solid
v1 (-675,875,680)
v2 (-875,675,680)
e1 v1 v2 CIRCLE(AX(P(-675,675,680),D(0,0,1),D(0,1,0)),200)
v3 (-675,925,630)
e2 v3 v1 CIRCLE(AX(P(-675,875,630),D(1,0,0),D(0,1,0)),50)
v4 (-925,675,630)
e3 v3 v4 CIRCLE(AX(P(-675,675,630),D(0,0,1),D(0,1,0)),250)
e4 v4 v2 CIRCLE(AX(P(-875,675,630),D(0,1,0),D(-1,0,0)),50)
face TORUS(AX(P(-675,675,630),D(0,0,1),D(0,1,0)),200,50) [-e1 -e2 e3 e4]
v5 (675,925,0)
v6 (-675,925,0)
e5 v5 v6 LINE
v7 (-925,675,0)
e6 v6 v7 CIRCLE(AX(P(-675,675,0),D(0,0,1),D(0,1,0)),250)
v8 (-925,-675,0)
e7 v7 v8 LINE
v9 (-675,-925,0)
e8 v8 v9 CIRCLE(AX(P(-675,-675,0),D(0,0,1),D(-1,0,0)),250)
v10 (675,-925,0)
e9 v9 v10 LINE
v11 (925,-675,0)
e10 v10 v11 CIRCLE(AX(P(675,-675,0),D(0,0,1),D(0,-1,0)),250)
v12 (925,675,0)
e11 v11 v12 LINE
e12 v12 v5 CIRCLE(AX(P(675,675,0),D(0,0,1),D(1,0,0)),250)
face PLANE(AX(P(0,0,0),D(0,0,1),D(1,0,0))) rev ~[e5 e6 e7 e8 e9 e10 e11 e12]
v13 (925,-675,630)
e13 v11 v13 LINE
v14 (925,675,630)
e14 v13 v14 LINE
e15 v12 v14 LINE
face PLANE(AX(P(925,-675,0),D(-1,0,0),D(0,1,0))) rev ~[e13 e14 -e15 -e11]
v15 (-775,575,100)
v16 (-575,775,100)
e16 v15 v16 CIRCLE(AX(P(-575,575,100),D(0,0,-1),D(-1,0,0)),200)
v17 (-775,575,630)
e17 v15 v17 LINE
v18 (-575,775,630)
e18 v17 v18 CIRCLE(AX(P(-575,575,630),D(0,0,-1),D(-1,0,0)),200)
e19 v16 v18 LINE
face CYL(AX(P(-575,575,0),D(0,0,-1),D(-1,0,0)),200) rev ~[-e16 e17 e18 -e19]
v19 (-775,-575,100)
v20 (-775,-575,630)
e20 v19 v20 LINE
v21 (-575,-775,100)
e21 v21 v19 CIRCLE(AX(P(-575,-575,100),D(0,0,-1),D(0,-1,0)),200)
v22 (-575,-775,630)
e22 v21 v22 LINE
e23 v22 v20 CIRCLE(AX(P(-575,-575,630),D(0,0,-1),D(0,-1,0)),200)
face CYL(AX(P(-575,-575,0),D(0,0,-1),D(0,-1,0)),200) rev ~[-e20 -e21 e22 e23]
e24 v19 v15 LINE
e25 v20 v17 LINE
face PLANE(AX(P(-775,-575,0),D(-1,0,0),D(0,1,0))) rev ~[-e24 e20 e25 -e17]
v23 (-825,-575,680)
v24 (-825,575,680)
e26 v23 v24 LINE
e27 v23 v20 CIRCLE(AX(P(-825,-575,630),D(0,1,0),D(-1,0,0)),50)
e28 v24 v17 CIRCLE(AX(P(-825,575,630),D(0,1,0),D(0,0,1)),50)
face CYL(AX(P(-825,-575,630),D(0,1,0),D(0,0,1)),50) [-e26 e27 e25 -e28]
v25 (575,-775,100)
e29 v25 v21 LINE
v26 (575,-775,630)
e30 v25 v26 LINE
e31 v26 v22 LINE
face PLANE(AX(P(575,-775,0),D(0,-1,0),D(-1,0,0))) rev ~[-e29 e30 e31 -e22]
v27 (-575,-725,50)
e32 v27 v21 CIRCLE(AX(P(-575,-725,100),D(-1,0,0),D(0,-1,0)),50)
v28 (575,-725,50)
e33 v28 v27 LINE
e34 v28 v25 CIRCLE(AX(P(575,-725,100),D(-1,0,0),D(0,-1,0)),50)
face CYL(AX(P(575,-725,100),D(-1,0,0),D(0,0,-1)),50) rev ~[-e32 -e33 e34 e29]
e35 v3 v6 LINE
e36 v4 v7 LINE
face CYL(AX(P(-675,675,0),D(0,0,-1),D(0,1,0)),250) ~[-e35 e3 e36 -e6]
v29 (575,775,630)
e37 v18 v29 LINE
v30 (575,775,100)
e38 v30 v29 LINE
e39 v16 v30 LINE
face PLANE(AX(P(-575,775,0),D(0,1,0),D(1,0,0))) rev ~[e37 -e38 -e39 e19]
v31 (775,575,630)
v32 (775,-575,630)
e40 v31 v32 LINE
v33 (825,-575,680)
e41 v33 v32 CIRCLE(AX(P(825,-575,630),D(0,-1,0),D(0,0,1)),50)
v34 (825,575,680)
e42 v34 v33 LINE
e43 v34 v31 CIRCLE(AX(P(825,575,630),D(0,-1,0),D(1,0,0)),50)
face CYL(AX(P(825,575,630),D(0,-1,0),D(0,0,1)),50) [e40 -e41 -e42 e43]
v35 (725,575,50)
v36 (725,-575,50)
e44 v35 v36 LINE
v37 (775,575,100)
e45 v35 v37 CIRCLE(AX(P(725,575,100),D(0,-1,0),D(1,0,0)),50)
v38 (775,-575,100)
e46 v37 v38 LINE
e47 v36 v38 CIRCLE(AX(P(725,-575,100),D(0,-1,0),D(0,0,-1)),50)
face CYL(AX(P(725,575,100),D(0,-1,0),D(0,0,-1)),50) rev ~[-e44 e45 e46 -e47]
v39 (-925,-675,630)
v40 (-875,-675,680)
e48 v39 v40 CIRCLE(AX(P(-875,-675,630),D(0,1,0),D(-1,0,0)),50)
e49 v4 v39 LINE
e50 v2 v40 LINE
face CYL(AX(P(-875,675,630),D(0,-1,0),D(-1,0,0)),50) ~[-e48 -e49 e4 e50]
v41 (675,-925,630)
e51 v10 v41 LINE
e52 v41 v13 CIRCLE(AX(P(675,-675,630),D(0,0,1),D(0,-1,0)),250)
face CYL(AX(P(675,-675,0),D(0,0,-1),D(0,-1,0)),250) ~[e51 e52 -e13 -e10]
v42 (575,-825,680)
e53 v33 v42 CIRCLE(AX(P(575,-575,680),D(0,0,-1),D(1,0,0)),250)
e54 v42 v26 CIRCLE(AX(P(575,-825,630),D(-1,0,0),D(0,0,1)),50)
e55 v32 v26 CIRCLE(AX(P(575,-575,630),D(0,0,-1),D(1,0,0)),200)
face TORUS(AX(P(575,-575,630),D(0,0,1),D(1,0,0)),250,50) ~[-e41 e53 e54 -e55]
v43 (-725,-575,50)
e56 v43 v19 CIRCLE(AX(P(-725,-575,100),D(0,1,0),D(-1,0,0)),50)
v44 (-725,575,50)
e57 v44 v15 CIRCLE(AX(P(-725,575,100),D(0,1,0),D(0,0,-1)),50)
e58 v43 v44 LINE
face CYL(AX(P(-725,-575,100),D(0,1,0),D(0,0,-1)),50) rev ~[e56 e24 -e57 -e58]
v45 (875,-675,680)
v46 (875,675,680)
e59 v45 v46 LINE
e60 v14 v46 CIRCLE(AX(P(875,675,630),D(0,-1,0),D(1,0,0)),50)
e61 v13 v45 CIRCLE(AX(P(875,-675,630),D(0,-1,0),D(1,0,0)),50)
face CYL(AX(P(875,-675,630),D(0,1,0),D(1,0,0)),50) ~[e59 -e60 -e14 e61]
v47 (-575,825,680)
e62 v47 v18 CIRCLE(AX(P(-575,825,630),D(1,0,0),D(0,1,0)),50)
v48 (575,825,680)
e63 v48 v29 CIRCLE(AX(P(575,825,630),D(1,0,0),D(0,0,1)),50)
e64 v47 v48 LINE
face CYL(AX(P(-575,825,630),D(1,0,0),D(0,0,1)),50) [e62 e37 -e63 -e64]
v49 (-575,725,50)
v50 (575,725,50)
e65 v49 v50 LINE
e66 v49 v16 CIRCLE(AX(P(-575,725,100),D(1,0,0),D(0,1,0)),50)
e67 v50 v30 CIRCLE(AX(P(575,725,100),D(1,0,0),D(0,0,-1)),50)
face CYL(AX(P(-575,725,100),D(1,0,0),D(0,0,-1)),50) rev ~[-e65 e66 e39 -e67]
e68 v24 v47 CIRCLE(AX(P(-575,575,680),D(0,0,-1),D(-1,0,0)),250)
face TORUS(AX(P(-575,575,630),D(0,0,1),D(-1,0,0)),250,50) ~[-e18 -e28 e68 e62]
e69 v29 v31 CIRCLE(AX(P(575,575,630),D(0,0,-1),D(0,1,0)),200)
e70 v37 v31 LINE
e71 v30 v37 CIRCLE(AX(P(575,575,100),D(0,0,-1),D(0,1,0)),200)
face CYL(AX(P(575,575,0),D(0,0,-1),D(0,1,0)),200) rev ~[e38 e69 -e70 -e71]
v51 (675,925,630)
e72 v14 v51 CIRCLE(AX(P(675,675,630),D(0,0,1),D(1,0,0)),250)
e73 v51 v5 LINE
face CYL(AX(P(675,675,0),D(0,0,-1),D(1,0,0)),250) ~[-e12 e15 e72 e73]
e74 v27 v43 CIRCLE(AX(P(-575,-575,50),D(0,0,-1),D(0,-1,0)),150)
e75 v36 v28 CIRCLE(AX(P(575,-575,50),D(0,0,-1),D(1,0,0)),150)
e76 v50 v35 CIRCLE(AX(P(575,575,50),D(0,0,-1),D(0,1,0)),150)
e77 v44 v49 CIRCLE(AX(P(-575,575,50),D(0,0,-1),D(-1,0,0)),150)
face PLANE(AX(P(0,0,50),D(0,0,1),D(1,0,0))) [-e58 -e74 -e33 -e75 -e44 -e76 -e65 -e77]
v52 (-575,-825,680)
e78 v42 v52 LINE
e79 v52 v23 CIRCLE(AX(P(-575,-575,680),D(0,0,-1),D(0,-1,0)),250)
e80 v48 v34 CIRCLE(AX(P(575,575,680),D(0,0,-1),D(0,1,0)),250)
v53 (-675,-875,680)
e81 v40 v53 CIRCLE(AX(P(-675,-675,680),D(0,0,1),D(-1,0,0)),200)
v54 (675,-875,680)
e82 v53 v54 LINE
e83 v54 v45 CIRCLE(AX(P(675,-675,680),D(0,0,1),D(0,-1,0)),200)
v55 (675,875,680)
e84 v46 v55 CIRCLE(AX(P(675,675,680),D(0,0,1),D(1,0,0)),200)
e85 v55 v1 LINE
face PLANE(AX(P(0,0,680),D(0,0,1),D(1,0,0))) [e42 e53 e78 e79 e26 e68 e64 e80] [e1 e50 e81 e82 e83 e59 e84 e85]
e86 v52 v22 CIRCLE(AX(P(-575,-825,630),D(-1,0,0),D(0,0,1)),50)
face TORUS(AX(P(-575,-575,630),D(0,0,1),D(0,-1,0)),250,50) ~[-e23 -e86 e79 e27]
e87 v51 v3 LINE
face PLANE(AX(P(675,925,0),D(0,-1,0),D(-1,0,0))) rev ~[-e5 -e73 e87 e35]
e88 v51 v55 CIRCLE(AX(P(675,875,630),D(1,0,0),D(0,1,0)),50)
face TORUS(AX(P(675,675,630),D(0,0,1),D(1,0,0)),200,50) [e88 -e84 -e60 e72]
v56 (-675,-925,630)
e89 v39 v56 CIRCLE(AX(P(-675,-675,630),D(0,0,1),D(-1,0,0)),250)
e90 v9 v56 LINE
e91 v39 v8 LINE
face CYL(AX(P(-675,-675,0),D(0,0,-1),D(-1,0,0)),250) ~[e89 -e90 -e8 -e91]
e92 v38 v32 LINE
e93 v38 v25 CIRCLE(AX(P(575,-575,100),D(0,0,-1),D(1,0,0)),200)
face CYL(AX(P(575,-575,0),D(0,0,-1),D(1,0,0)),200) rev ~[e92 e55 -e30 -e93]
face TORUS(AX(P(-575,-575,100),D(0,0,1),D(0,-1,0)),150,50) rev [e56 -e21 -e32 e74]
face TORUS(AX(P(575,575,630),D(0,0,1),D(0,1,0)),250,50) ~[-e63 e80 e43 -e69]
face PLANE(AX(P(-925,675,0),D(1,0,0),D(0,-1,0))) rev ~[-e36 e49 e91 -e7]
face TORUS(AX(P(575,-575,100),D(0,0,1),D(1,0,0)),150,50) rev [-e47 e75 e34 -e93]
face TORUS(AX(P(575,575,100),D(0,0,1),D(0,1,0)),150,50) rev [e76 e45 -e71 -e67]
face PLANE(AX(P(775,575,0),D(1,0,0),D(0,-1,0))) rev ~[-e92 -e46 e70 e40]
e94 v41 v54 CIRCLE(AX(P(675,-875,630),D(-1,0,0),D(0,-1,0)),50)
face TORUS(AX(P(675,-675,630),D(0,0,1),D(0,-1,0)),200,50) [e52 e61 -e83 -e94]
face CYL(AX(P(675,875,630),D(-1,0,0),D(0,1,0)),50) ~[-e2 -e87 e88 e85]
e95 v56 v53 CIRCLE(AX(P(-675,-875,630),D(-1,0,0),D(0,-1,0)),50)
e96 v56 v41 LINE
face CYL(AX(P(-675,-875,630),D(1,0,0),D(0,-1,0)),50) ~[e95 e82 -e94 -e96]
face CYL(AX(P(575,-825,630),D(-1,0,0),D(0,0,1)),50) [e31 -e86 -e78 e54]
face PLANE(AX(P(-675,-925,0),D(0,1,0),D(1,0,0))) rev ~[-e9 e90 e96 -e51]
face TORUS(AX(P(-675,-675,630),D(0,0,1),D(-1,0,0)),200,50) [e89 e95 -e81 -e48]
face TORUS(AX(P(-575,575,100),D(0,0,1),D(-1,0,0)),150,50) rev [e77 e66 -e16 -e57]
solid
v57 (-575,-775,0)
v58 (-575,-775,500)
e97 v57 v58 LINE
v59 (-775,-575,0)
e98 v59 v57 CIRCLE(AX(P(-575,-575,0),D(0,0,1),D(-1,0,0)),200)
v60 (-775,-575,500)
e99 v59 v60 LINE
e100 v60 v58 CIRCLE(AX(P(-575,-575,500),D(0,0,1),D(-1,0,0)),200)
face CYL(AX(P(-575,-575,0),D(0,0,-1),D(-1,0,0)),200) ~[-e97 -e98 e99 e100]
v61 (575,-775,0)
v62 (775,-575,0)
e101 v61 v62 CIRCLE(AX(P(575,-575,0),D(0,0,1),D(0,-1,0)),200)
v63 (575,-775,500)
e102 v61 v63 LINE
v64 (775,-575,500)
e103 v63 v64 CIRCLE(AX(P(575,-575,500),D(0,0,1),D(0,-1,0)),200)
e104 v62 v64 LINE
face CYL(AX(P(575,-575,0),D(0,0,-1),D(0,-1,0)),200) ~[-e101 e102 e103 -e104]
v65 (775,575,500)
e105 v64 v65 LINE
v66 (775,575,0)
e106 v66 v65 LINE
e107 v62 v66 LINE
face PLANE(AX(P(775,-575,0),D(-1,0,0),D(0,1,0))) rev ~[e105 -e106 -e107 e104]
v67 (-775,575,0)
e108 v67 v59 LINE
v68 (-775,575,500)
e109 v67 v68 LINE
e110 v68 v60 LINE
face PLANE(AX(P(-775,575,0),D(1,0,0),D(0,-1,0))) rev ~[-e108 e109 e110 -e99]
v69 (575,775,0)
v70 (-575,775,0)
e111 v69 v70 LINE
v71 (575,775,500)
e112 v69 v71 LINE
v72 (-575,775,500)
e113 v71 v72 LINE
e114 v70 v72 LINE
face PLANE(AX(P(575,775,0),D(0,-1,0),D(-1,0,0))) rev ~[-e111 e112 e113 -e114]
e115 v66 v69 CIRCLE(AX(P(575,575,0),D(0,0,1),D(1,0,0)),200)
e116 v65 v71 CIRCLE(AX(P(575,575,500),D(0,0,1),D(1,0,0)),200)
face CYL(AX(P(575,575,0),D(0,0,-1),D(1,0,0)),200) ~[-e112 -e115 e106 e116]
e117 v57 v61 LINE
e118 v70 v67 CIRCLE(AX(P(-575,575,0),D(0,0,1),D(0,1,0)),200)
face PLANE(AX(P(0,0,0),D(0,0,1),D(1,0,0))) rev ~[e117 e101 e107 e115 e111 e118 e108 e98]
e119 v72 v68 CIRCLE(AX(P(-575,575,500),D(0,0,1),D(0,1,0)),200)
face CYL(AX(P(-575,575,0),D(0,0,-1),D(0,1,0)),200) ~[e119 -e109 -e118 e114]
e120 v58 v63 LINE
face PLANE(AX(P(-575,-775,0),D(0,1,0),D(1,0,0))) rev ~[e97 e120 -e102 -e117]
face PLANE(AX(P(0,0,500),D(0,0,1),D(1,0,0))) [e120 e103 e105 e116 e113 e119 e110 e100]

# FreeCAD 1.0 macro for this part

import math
import FreeCAD as App
import Part
import Sketcher


def edges_at(feature, points):
    """Names of the edges that pass closest to the given points."""
    edges = feature.Shape.Edges
    near = lambda p: min(range(len(edges)), key=lambda i: edges[i].distToShape(Part.Vertex(*p))[0])
    return sorted({f"Edge{near(p) + 1}" for p in points})

doc = App.newDocument("Part")
body = doc.addObject("PartDesign::Body", "Body")

# Sketch on XY plane
sketch1 = body.newObject("Sketcher::SketchObject", "Sketch")
sketch1.AttachmentSupport = (doc.getObject("XY_Plane"), [""])
sketch1.MapMode = "FlatFace"
sketch1.addGeometry(Part.ArcOfCircle(Part.Circle(App.Vector(-675, -675, 0), App.Vector(0, 0, 1), 250), math.radians(180), math.radians(270)), False)
sketch1.addGeometry(Part.LineSegment(App.Vector(-675, -925, 0), App.Vector(675, -925, 0)), False)
sketch1.addGeometry(Part.ArcOfCircle(Part.Circle(App.Vector(675, -675, 0), App.Vector(0, 0, 1), 250), math.radians(-90), math.radians(0)), False)
sketch1.addGeometry(Part.LineSegment(App.Vector(925, -675, 0), App.Vector(925, 675, 0)), False)
sketch1.addGeometry(Part.ArcOfCircle(Part.Circle(App.Vector(675, 675, 0), App.Vector(0, 0, 1), 250), math.radians(0), math.radians(90)), False)
sketch1.addGeometry(Part.LineSegment(App.Vector(675, 925, 0), App.Vector(-675, 925, 0)), False)
sketch1.addGeometry(Part.ArcOfCircle(Part.Circle(App.Vector(-675, 675, 0), App.Vector(0, 0, 1), 250), math.radians(90), math.radians(180)), False)
sketch1.addGeometry(Part.LineSegment(App.Vector(-925, 675, 0), App.Vector(-925, -675, 0)), False)
sketch1.addConstraint(Sketcher.Constraint("Tangent", 0, 2, 1, 1))
sketch1.addConstraint(Sketcher.Constraint("Tangent", 1, 2, 2, 1))
sketch1.addConstraint(Sketcher.Constraint("Tangent", 2, 2, 3, 1))
sketch1.addConstraint(Sketcher.Constraint("Tangent", 3, 2, 4, 1))
sketch1.addConstraint(Sketcher.Constraint("Tangent", 4, 2, 5, 1))
sketch1.addConstraint(Sketcher.Constraint("Tangent", 5, 2, 6, 1))
sketch1.addConstraint(Sketcher.Constraint("Tangent", 6, 2, 7, 1))
sketch1.addConstraint(Sketcher.Constraint("Tangent", 7, 2, 0, 1))
sketch1.addConstraint(Sketcher.Constraint("Horizontal", 1))
sketch1.addConstraint(Sketcher.Constraint("Vertical", 3))
sketch1.addConstraint(Sketcher.Constraint("Horizontal", 5))
sketch1.addConstraint(Sketcher.Constraint("Vertical", 7))
sketch1.addConstraint(Sketcher.Constraint("Equal", 0, 2))
sketch1.addConstraint(Sketcher.Constraint("Equal", 2, 4))
sketch1.addConstraint(Sketcher.Constraint("Equal", 4, 6))
sketch1.addConstraint(Sketcher.Constraint("Symmetric", 0, 3, 4, 3, -1, 1))
sketch1.addConstraint(Sketcher.Constraint("Equal", 5, 3))
sketch1.addConstraint(Sketcher.Constraint("Radius", 0, 250.0))
sketch1.addConstraint(Sketcher.Constraint("DistanceX", 1, 1, 1, 2, 1350.0))
pad1 = body.newObject("PartDesign::Pad", "Pad")
pad1.Profile = sketch1
pad1.Length = 50

# Sketch on XY plane
sketch2 = body.newObject("Sketcher::SketchObject", "Sketch001")
sketch2.AttachmentSupport = (doc.getObject("XY_Plane"), [""])
sketch2.MapMode = "FlatFace"
sketch2.addGeometry(Part.ArcOfCircle(Part.Circle(App.Vector(-675, -675, 0), App.Vector(0, 0, 1), 250), math.radians(180), math.radians(270)), False)
sketch2.addGeometry(Part.LineSegment(App.Vector(-675, -925, 0), App.Vector(675, -925, 0)), False)
sketch2.addGeometry(Part.ArcOfCircle(Part.Circle(App.Vector(675, -675, 0), App.Vector(0, 0, 1), 250), math.radians(-90), math.radians(0)), False)
sketch2.addGeometry(Part.LineSegment(App.Vector(925, -675, 0), App.Vector(925, 675, 0)), False)
sketch2.addGeometry(Part.ArcOfCircle(Part.Circle(App.Vector(675, 675, 0), App.Vector(0, 0, 1), 250), math.radians(0), math.radians(90)), False)
sketch2.addGeometry(Part.LineSegment(App.Vector(675, 925, 0), App.Vector(-675, 925, 0)), False)
sketch2.addGeometry(Part.ArcOfCircle(Part.Circle(App.Vector(-675, 675, 0), App.Vector(0, 0, 1), 250), math.radians(90), math.radians(180)), False)
sketch2.addGeometry(Part.LineSegment(App.Vector(-925, 675, 0), App.Vector(-925, -675, 0)), False)
sketch2.addGeometry(Part.ArcOfCircle(Part.Circle(App.Vector(575, -575, 0), App.Vector(0, 0, 1), 200), math.radians(-90), math.radians(0)), False)
sketch2.addGeometry(Part.LineSegment(App.Vector(575, -775, 0), App.Vector(-575, -775, 0)), False)
sketch2.addGeometry(Part.ArcOfCircle(Part.Circle(App.Vector(-575, -575, 0), App.Vector(0, 0, 1), 200), math.radians(180), math.radians(270)), False)
sketch2.addGeometry(Part.LineSegment(App.Vector(-775, -575, 0), App.Vector(-775, 575, 0)), False)
sketch2.addGeometry(Part.ArcOfCircle(Part.Circle(App.Vector(-575, 575, 0), App.Vector(0, 0, 1), 200), math.radians(90), math.radians(180)), False)
sketch2.addGeometry(Part.LineSegment(App.Vector(-575, 775, 0), App.Vector(575, 775, 0)), False)
sketch2.addGeometry(Part.ArcOfCircle(Part.Circle(App.Vector(575, 575, 0), App.Vector(0, 0, 1), 200), math.radians(0), math.radians(90)), False)
sketch2.addGeometry(Part.LineSegment(App.Vector(775, 575, 0), App.Vector(775, -575, 0)), False)
sketch2.addConstraint(Sketcher.Constraint("Tangent", 0, 2, 1, 1))
sketch2.addConstraint(Sketcher.Constraint("Tangent", 1, 2, 2, 1))
sketch2.addConstraint(Sketcher.Constraint("Tangent", 2, 2, 3, 1))
sketch2.addConstraint(Sketcher.Constraint("Tangent", 3, 2, 4, 1))
sketch2.addConstraint(Sketcher.Constraint("Tangent", 4, 2, 5, 1))
sketch2.addConstraint(Sketcher.Constraint("Tangent", 5, 2, 6, 1))
sketch2.addConstraint(Sketcher.Constraint("Tangent", 6, 2, 7, 1))
sketch2.addConstraint(Sketcher.Constraint("Tangent", 7, 2, 0, 1))
sketch2.addConstraint(Sketcher.Constraint("Tangent", 8, 1, 9, 1))
sketch2.addConstraint(Sketcher.Constraint("Tangent", 9, 2, 10, 2))
sketch2.addConstraint(Sketcher.Constraint("Tangent", 10, 1, 11, 1))
sketch2.addConstraint(Sketcher.Constraint("Tangent", 11, 2, 12, 2))
sketch2.addConstraint(Sketcher.Constraint("Tangent", 12, 1, 13, 1))
sketch2.addConstraint(Sketcher.Constraint("Tangent", 13, 2, 14, 2))
sketch2.addConstraint(Sketcher.Constraint("Tangent", 14, 1, 15, 1))
sketch2.addConstraint(Sketcher.Constraint("Tangent", 15, 2, 8, 2))
sketch2.addConstraint(Sketcher.Constraint("Horizontal", 1))
sketch2.addConstraint(Sketcher.Constraint("Vertical", 3))
sketch2.addConstraint(Sketcher.Constraint("Horizontal", 5))
sketch2.addConstraint(Sketcher.Constraint("Vertical", 7))
sketch2.addConstraint(Sketcher.Constraint("Horizontal", 9))
sketch2.addConstraint(Sketcher.Constraint("Vertical", 11))
sketch2.addConstraint(Sketcher.Constraint("Horizontal", 13))
sketch2.addConstraint(Sketcher.Constraint("Vertical", 15))
sketch2.addConstraint(Sketcher.Constraint("Equal", 0, 2))
sketch2.addConstraint(Sketcher.Constraint("Equal", 2, 4))
sketch2.addConstraint(Sketcher.Constraint("Equal", 4, 6))
sketch2.addConstraint(Sketcher.Constraint("Equal", 8, 10))
sketch2.addConstraint(Sketcher.Constraint("Equal", 10, 12))
sketch2.addConstraint(Sketcher.Constraint("Equal", 12, 14))
sketch2.addConstraint(Sketcher.Constraint("Symmetric", 0, 3, 4, 3, -1, 1))
sketch2.addConstraint(Sketcher.Constraint("Symmetric", 8, 3, 12, 3, -1, 1))
sketch2.addConstraint(Sketcher.Constraint("Equal", 5, 3))
sketch2.addConstraint(Sketcher.Constraint("Equal", 13, 11))
sketch2.addConstraint(Sketcher.Constraint("Radius", 0, 250.0))
sketch2.addConstraint(Sketcher.Constraint("Radius", 8, 200.0))
sketch2.addConstraint(Sketcher.Constraint("DistanceX", 1, 1, 1, 2, 1350.0))
sketch2.addConstraint(Sketcher.Constraint("DistanceX", 9, 2, 9, 1, 1150.0))
pad2 = body.newObject("PartDesign::Pad", "Pad001")
pad2.Profile = sketch2
pad2.Length = 680
doc.recompute()

fillet = body.newObject("PartDesign::Fillet", "Fillet")
fillet.Base = (pad2, edges_at(pad2, [
    (-851.777, -851.777, 680),
    (0, -925, 680),
    (851.777, -851.777, 680),
    (925, 0, 680),
    (851.777, 851.777, 680),
    (0, 925, 680),
    (-851.777, 851.777, 680),
    (-925, 0, 680),
    (0, -775, 680),
    (-716.421, -716.421, 680),
    (-775, 0, 680),
    (-716.421, 716.421, 680),
    (0, 775, 680),
    (716.421, 716.421, 680),
    (775, 0, 680),
    (716.421, -716.421, 680),
    (-716.421, -716.421, 50),
    (-775, 0, 50),
    (-716.421, 716.421, 50),
    (0, 775, 50),
    (716.421, 716.421, 50),
    (775, 0, 50),
    (716.421, -716.421, 50),
    (0, -775, 50),
]))
fillet.Radius = 50
body2 = doc.addObject("PartDesign::Body", "Body001")

# Sketch on XY plane
sketch3 = body2.newObject("Sketcher::SketchObject", "Sketch002")
sketch3.AttachmentSupport = (doc.getObject("XY_Plane001"), [""])
sketch3.MapMode = "FlatFace"
sketch3.addGeometry(Part.ArcOfCircle(Part.Circle(App.Vector(-575, -575, 0), App.Vector(0, 0, 1), 200), math.radians(180), math.radians(270)), False)
sketch3.addGeometry(Part.LineSegment(App.Vector(-575, -775, 0), App.Vector(575, -775, 0)), False)
sketch3.addGeometry(Part.ArcOfCircle(Part.Circle(App.Vector(575, -575, 0), App.Vector(0, 0, 1), 200), math.radians(-90), math.radians(0)), False)
sketch3.addGeometry(Part.LineSegment(App.Vector(775, -575, 0), App.Vector(775, 575, 0)), False)
sketch3.addGeometry(Part.ArcOfCircle(Part.Circle(App.Vector(575, 575, 0), App.Vector(0, 0, 1), 200), math.radians(0), math.radians(90)), False)
sketch3.addGeometry(Part.LineSegment(App.Vector(575, 775, 0), App.Vector(-575, 775, 0)), False)
sketch3.addGeometry(Part.ArcOfCircle(Part.Circle(App.Vector(-575, 575, 0), App.Vector(0, 0, 1), 200), math.radians(90), math.radians(180)), False)
sketch3.addGeometry(Part.LineSegment(App.Vector(-775, 575, 0), App.Vector(-775, -575, 0)), False)
sketch3.addConstraint(Sketcher.Constraint("Tangent", 0, 2, 1, 1))
sketch3.addConstraint(Sketcher.Constraint("Tangent", 1, 2, 2, 1))
sketch3.addConstraint(Sketcher.Constraint("Tangent", 2, 2, 3, 1))
sketch3.addConstraint(Sketcher.Constraint("Tangent", 3, 2, 4, 1))
sketch3.addConstraint(Sketcher.Constraint("Tangent", 4, 2, 5, 1))
sketch3.addConstraint(Sketcher.Constraint("Tangent", 5, 2, 6, 1))
sketch3.addConstraint(Sketcher.Constraint("Tangent", 6, 2, 7, 1))
sketch3.addConstraint(Sketcher.Constraint("Tangent", 7, 2, 0, 1))
sketch3.addConstraint(Sketcher.Constraint("Horizontal", 1))
sketch3.addConstraint(Sketcher.Constraint("Vertical", 3))
sketch3.addConstraint(Sketcher.Constraint("Horizontal", 5))
sketch3.addConstraint(Sketcher.Constraint("Vertical", 7))
sketch3.addConstraint(Sketcher.Constraint("Equal", 0, 2))
sketch3.addConstraint(Sketcher.Constraint("Equal", 2, 4))
sketch3.addConstraint(Sketcher.Constraint("Equal", 4, 6))
sketch3.addConstraint(Sketcher.Constraint("Symmetric", 0, 3, 4, 3, -1, 1))
sketch3.addConstraint(Sketcher.Constraint("Equal", 5, 3))
sketch3.addConstraint(Sketcher.Constraint("Radius", 0, 200.0))
sketch3.addConstraint(Sketcher.Constraint("DistanceX", 1, 1, 1, 2, 1150.0))
pad3 = body2.newObject("PartDesign::Pad", "Pad002")
pad3.Profile = sketch3
pad3.Length = 500

doc.recompute()
